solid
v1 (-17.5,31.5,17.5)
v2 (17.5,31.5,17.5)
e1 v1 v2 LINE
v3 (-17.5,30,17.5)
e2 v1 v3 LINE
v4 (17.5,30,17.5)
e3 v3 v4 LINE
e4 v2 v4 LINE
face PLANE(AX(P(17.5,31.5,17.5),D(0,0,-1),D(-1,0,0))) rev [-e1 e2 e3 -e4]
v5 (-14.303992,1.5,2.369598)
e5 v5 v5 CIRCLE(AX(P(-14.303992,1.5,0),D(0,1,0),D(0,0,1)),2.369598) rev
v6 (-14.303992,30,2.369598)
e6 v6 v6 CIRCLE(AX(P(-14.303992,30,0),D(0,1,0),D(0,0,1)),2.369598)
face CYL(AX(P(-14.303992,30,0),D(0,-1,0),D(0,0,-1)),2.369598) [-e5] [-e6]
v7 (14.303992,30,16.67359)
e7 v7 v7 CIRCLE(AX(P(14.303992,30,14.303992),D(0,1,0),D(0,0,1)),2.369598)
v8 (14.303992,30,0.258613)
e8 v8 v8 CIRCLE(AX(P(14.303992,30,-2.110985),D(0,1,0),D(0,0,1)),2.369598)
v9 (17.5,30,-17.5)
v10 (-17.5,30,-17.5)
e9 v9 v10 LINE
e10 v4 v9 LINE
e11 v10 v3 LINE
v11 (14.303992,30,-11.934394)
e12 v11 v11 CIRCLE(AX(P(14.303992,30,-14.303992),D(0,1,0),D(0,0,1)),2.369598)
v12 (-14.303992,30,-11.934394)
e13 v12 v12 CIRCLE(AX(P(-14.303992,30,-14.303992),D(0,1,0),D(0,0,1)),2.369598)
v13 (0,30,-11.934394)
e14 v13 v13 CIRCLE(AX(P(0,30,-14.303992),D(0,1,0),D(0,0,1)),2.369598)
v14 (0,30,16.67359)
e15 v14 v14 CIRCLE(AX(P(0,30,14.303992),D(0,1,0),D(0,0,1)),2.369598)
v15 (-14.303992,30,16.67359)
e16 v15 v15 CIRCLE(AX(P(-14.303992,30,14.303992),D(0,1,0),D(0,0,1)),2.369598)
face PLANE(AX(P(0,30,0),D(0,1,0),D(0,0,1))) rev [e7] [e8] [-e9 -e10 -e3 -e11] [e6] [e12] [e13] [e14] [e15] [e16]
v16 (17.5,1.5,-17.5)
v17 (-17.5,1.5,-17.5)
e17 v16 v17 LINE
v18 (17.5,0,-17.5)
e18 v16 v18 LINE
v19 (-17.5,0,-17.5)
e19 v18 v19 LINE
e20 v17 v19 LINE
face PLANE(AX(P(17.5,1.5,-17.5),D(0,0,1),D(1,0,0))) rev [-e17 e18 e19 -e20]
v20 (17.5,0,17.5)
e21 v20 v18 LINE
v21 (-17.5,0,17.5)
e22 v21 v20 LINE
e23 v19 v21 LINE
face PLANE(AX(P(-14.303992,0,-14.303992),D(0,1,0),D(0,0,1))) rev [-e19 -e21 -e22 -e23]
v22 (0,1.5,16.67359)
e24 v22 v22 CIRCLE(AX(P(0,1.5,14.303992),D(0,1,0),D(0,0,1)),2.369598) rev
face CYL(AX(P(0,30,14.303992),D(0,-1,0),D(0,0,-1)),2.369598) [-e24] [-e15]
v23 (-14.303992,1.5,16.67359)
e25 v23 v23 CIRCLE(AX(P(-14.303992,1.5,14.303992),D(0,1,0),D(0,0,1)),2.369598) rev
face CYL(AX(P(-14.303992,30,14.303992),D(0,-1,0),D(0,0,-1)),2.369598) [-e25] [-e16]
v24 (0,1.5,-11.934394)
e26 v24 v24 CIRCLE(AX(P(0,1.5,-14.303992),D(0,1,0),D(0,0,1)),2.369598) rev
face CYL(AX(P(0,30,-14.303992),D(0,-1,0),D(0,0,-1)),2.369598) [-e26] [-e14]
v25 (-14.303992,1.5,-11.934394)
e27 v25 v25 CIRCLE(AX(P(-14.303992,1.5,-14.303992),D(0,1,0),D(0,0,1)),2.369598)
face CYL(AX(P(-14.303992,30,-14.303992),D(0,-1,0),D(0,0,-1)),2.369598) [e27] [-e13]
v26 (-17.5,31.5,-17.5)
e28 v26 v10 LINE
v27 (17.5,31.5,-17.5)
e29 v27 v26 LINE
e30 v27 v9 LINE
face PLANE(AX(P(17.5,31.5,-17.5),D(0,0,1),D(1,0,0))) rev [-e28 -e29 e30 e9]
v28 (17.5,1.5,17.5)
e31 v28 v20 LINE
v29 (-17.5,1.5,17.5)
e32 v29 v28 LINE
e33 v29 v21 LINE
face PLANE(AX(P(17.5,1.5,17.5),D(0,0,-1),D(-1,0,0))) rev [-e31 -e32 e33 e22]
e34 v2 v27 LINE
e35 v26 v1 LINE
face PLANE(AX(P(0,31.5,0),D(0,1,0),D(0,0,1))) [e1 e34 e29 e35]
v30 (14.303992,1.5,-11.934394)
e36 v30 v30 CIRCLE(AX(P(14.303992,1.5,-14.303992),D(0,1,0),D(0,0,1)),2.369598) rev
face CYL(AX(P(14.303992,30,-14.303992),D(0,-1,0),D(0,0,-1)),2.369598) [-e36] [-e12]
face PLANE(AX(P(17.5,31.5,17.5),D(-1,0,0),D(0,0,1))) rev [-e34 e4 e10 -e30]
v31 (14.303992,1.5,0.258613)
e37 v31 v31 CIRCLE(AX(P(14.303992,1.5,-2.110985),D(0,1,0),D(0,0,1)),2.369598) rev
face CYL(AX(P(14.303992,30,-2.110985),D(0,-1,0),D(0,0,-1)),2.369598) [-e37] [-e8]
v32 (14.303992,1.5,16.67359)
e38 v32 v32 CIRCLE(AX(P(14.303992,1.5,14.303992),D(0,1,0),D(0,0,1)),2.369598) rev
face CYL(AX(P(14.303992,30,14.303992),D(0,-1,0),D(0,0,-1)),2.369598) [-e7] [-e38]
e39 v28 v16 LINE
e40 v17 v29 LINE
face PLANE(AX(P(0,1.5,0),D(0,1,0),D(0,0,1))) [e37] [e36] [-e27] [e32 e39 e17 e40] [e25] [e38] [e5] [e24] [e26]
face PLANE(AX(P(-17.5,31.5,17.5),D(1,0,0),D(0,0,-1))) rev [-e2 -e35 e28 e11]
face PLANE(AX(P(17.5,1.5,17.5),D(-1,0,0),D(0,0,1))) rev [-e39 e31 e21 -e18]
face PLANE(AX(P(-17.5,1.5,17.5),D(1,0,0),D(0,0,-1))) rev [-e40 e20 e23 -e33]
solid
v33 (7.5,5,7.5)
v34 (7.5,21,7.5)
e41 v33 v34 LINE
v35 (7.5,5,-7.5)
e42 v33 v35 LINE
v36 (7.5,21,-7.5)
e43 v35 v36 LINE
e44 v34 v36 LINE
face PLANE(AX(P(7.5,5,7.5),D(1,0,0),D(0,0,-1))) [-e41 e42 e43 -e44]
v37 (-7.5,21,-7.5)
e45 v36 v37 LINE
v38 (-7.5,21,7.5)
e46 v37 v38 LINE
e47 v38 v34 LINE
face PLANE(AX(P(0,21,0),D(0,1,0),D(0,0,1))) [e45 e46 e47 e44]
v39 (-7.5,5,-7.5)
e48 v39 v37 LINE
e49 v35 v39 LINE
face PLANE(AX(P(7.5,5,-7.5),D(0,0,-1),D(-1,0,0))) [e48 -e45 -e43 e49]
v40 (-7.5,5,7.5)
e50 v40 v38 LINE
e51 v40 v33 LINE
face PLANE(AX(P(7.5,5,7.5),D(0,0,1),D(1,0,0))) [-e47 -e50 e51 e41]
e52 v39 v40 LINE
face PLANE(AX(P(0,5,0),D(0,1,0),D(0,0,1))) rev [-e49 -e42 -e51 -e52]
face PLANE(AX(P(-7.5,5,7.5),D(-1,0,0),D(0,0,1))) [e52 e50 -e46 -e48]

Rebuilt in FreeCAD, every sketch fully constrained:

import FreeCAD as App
import Part
import Sketcher
from FreeCAD import Vector
Q = App.Units.Quantity


def add_polygon(sketch, points):
    """Adds a closed chain of lines whose ends are joined by coincident constraints."""
    first, n = sketch.GeometryCount, len(points)
    for a, b in zip(points, points[1:] + points[:1]):
        sketch.addGeometry(Part.LineSegment(App.Vector(*a, 0), App.Vector(*b, 0)), False)
    for i in range(n):
        sketch.addConstraint(Sketcher.Constraint("Coincident", first + i, 2, first + (i + 1) % n, 1))

doc = App.newDocument("Part")
body = doc.addObject("PartDesign::Body", "Body")

# Sketch on XZ plane
sketch1 = body.newObject("Sketcher::SketchObject", "Sketch")
sketch1.AttachmentSupport = (doc.getObject("XZ_Plane"), [""])
sketch1.MapMode = "FlatFace"
sketch1.addGeometry(Part.Circle(Vector(-14.3, -14.3, 0), Vector(0, 0, 1), 2.4), False)
sketch1.addConstraint([
    Sketcher.Constraint("Diameter", 0, Q("4.739196 mm")),
    Sketcher.Constraint("DistanceX", 0, 3, -1, 1, Q("14.303992 mm")),
    Sketcher.Constraint("DistanceY", 0, 3, -1, 1, Q("14.303992 mm")),
])
pad1 = body.newObject("PartDesign::Pad", "Pad")
pad1.Profile = sketch1
pad1.Length = 30
pad1.Reversed = True
body2 = doc.addObject("PartDesign::Body", "Body001")

# Sketch on XZ plane
sketch2 = body2.newObject("Sketcher::SketchObject", "Sketch001")
sketch2.AttachmentSupport = (doc.getObject("XZ_Plane001"), [""])
sketch2.MapMode = "FlatFace"
sketch2.addGeometry(Part.Circle(Vector(14.3, -14.3, 0), Vector(0, 0, 1), 2.4), False)
sketch2.addConstraint([
    Sketcher.Constraint("Diameter", 0, Q("4.739196 mm")),
    Sketcher.Constraint("DistanceX", -1, 1, 0, 3, Q("14.303992 mm")),
    Sketcher.Constraint("DistanceY", 0, 3, -1, 1, Q("14.303992 mm")),
])
pad2 = body2.newObject("PartDesign::Pad", "Pad001")
pad2.Profile = sketch2
pad2.Length = 30
pad2.Reversed = True
body3 = doc.addObject("PartDesign::Body", "Body002")

# Sketch on XZ plane
sketch3 = body3.newObject("Sketcher::SketchObject", "Sketch002")
sketch3.AttachmentSupport = (doc.getObject("XZ_Plane002"), [""])
sketch3.MapMode = "FlatFace"
sketch3.addGeometry(Part.Circle(Vector(14.3, 14.3, 0), Vector(0, 0, 1), 2.4), False)
sketch3.addConstraint([
    Sketcher.Constraint("Diameter", 0, Q("4.739196 mm")),
    Sketcher.Constraint("DistanceX", -1, 1, 0, 3, Q("14.303992 mm")),
    Sketcher.Constraint("DistanceY", -1, 1, 0, 3, Q("14.303992 mm")),
])
pad3 = body3.newObject("PartDesign::Pad", "Pad002")
pad3.Profile = sketch3
pad3.Length = 30
pad3.Reversed = True
body4 = doc.addObject("PartDesign::Body", "Body003")

# Sketch on XZ plane
sketch4 = body4.newObject("Sketcher::SketchObject", "Sketch003")
sketch4.AttachmentSupport = (doc.getObject("XZ_Plane003"), [""])
sketch4.MapMode = "FlatFace"
sketch4.addGeometry(Part.Circle(Vector(-14.3, 14.3, 0), Vector(0, 0, 1), 2.4), False)
sketch4.addConstraint([
    Sketcher.Constraint("Diameter", 0, Q("4.739196 mm")),
    Sketcher.Constraint("DistanceX", 0, 3, -1, 1, Q("14.303992 mm")),
    Sketcher.Constraint("DistanceY", -1, 1, 0, 3, Q("14.303992 mm")),
])
pad4 = body4.newObject("PartDesign::Pad", "Pad003")
pad4.Profile = sketch4
pad4.Length = 30
pad4.Reversed = True
body5 = doc.addObject("PartDesign::Body", "Body004")

# Sketch on XZ plane
sketch5 = body5.newObject("Sketcher::SketchObject", "Sketch004")
sketch5.AttachmentSupport = (doc.getObject("XZ_Plane004"), [""])
sketch5.MapMode = "FlatFace"
sketch5.addGeometry(Part.Circle(Vector(-14.3, 0, 0), Vector(0, 0, 1), 2.4), False)
sketch5.addConstraint([
    Sketcher.Constraint("PointOnObject", 0, 3, -1),
    Sketcher.Constraint("Diameter", 0, Q("4.739196 mm")),
    Sketcher.Constraint("DistanceX", 0, 3, -1, 1, Q("14.303992 mm")),
])
pad5 = body5.newObject("PartDesign::Pad", "Pad004")
pad5.Profile = sketch5
pad5.Length = 30
pad5.Reversed = True
body6 = doc.addObject("PartDesign::Body", "Body005")

# Sketch on XZ plane
sketch6 = body6.newObject("Sketcher::SketchObject", "Sketch005")
sketch6.AttachmentSupport = (doc.getObject("XZ_Plane005"), [""])
sketch6.MapMode = "FlatFace"
sketch6.addGeometry(Part.Circle(Vector(0, 14.3, 0), Vector(0, 0, 1), 2.4), False)
sketch6.addConstraint([
    Sketcher.Constraint("PointOnObject", 0, 3, -2),
    Sketcher.Constraint("Diameter", 0, Q("4.739196 mm")),
    Sketcher.Constraint("DistanceY", -1, 1, 0, 3, Q("14.303992 mm")),
])
pad6 = body6.newObject("PartDesign::Pad", "Pad005")
pad6.Profile = sketch6
pad6.Length = 30
pad6.Reversed = True
body7 = doc.addObject("PartDesign::Body", "Body006")

# Sketch on XZ plane
sketch7 = body7.newObject("Sketcher::SketchObject", "Sketch006")
sketch7.AttachmentSupport = (doc.getObject("XZ_Plane006"), [""])
sketch7.MapMode = "FlatFace"
sketch7.addGeometry(Part.Circle(Vector(14.3, -2.1, 0), Vector(0, 0, 1), 2.4), False)
sketch7.addConstraint([
    Sketcher.Constraint("Diameter", 0, Q("4.739196 mm")),
    Sketcher.Constraint("DistanceX", -1, 1, 0, 3, Q("14.303992 mm")),
    Sketcher.Constraint("DistanceY", 0, 3, -1, 1, Q("2.110985 mm")),
])
pad7 = body7.newObject("PartDesign::Pad", "Pad006")
pad7.Profile = sketch7
pad7.Length = 30
pad7.Reversed = True
body8 = doc.addObject("PartDesign::Body", "Body007")

# Sketch on XZ plane
sketch8 = body8.newObject("Sketcher::SketchObject", "Sketch007")
sketch8.AttachmentSupport = (doc.getObject("XZ_Plane007"), [""])
sketch8.MapMode = "FlatFace"
sketch8.addGeometry(Part.Circle(Vector(0, -14.3, 0), Vector(0, 0, 1), 2.4), False)
sketch8.addConstraint([
    Sketcher.Constraint("PointOnObject", 0, 3, -2),
    Sketcher.Constraint("Diameter", 0, Q("4.739196 mm")),
    Sketcher.Constraint("DistanceY", 0, 3, -1, 1, Q("14.303992 mm")),
])
pad8 = body8.newObject("PartDesign::Pad", "Pad007")
pad8.Profile = sketch8
pad8.Length = 30
pad8.Reversed = True
body9 = doc.addObject("PartDesign::Body", "Body008")

# Sketch on XZ plane
sketch9 = body9.newObject("Sketcher::SketchObject", "Sketch008")
sketch9.AttachmentSupport = (doc.getObject("XZ_Plane008"), [""])
sketch9.MapMode = "FlatFace"
sketch9.AttachmentOffset = App.Placement(Vector(0, 0, -20), App.Rotation())
add_polygon(sketch9, [(-8, -8), (-8, 8), (8, 8), (8, -8)])  # lines 0-3
sketch9.addConstraint([
    Sketcher.Constraint("Vertical", 0),
    Sketcher.Constraint("Horizontal", 1),
    Sketcher.Constraint("Vertical", 2),
    Sketcher.Constraint("Horizontal", 3),
    Sketcher.Constraint("Symmetric", 0, 2, 2, 2, -1, 1),
    Sketcher.Constraint("Equal", 3, 0),
    Sketcher.Constraint("DistanceX", 1, 1, 1, 2, Q("15 mm")),
])
pad9 = body9.newObject("PartDesign::Pad", "Pad008")
pad9.Profile = sketch9
pad9.Type = "TwoLengths"
pad9.Length = 1
pad9.Length2 = 15
pad9.Reversed = True
body.AllowCompound = True
doc.recompute()

boolean = body.newObject("PartDesign::Boolean", "Boolean")
boolean.Type = "Fuse"
boolean.addObjects([body2])
doc.recompute()

boolean2 = body.newObject("PartDesign::Boolean", "Boolean001")
boolean2.Type = "Fuse"
boolean2.addObjects([body3])
doc.recompute()

boolean3 = body.newObject("PartDesign::Boolean", "Boolean002")
boolean3.Type = "Fuse"
boolean3.addObjects([body4])
doc.recompute()

boolean4 = body.newObject("PartDesign::Boolean", "Boolean003")
boolean4.Type = "Fuse"
boolean4.addObjects([body5])
doc.recompute()

boolean5 = body.newObject("PartDesign::Boolean", "Boolean004")
boolean5.Type = "Fuse"
boolean5.addObjects([body6])
doc.recompute()

boolean6 = body.newObject("PartDesign::Boolean", "Boolean005")
boolean6.Type = "Fuse"
boolean6.addObjects([body7])
doc.recompute()

boolean7 = body.newObject("PartDesign::Boolean", "Boolean006")
boolean7.Type = "Fuse"
boolean7.addObjects([body8])

# Sketch on XZ plane
sketch10 = body.newObject("Sketcher::SketchObject", "Sketch009")
sketch10.AttachmentSupport = (doc.getObject("XZ_Plane"), [""])
sketch10.MapMode = "FlatFace"
add_polygon(sketch10, [(-18, -18), (-18, 18), (18, 18), (18, -18)])  # lines 0-3
sketch10.addConstraint([
    Sketcher.Constraint("Vertical", 0),
    Sketcher.Constraint("Horizontal", 1),
    Sketcher.Constraint("Vertical", 2),
    Sketcher.Constraint("Horizontal", 3),
    Sketcher.Constraint("Symmetric", 0, 2, 2, 2, -1, 1),
    Sketcher.Constraint("Equal", 3, 0),
    Sketcher.Constraint("DistanceX", 1, 1, 1, 2, Q("35 mm")),
])
pad10 = body.newObject("PartDesign::Pad", "Pad009")
pad10.Profile = sketch10
pad10.Length = 1.5
pad10.Reversed = True

# Sketch on XZ plane
sketch11 = body.newObject("Sketcher::SketchObject", "Sketch010")
sketch11.AttachmentSupport = (doc.getObject("XZ_Plane"), [""])
sketch11.MapMode = "FlatFace"
sketch11.AttachmentOffset = App.Placement(Vector(0, 0, -30), App.Rotation())
add_polygon(sketch11, [(-18, -18), (-18, 18), (18, 18), (18, -18)])  # lines 0-3
sketch11.addConstraint([
    Sketcher.Constraint("Vertical", 0),
    Sketcher.Constraint("Horizontal", 1),
    Sketcher.Constraint("Vertical", 2),
    Sketcher.Constraint("Horizontal", 3),
    Sketcher.Constraint("Symmetric", 0, 2, 2, 2, -1, 1),
    Sketcher.Constraint("Equal", 3, 0),
    Sketcher.Constraint("DistanceX", 1, 1, 1, 2, Q("35 mm")),
])
pad11 = body.newObject("PartDesign::Pad", "Pad010")
pad11.Profile = sketch11
pad11.Length = 1.5
pad11.Reversed = True

doc.recompute()
